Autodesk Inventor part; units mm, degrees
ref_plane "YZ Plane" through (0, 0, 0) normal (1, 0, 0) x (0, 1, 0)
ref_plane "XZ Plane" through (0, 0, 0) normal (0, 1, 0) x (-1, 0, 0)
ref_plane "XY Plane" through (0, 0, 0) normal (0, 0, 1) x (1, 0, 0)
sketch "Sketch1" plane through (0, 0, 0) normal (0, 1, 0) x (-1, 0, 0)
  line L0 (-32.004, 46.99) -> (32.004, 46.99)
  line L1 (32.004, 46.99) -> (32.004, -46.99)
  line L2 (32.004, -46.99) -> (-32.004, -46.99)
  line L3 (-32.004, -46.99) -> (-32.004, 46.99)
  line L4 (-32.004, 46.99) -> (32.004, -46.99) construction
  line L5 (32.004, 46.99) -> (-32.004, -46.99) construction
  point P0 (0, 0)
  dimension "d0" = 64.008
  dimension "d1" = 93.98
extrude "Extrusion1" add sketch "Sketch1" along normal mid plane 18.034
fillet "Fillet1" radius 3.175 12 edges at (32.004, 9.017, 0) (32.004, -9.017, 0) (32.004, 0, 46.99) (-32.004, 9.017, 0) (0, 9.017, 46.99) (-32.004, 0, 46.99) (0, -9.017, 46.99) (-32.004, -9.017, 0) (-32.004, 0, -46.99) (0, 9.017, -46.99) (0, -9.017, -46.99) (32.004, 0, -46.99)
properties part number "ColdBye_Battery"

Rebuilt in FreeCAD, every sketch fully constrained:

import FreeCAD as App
import Part
import Sketcher
Q = App.Units.Quantity


def add_polygon(sketch, points):
    """Adds a closed chain of lines whose ends are joined by coincident constraints."""
    first, n = sketch.GeometryCount, len(points)
    for a, b in zip(points, points[1:] + points[:1]):
        sketch.addGeometry(Part.LineSegment(App.Vector(*a, 0), App.Vector(*b, 0)), False)
    for i in range(n):
        sketch.addConstraint(Sketcher.Constraint("Coincident", first + i, 2, first + (i + 1) % n, 1))

doc = App.newDocument("Part")
body = doc.addObject("PartDesign::Body", "Body")

sketch1 = body.newObject("Sketcher::SketchObject", "Sketch")
sketch1.AttachmentSupport = (doc.getObject("XZ_Plane"), [""])
sketch1.MapMode = "FlatFace"
add_polygon(sketch1, [(-32, 47), (32, 47), (32, -47), (-32, -47)])
sketch1.addConstraint([
    Sketcher.Constraint("Horizontal", 0),
    Sketcher.Constraint("Vertical", 1),
    Sketcher.Constraint("Horizontal", 2),
    Sketcher.Constraint("Vertical", 3),
    Sketcher.Constraint("Symmetric", 0, 2, 2, 2, -1, 1),
    Sketcher.Constraint("DistanceY", 1, 2, 1, 1, Q("3.7 in")),
    Sketcher.Constraint("DistanceX", 0, 1, 0, 2, Q("2.52 in")),
])
pad1 = body.newObject("PartDesign::Pad", "Pad")
pad1.Profile = sketch1
pad1.Length = Q("0.71 in")
pad1.Midplane = True
doc.recompute()

fillet = body.newObject("PartDesign::Fillet", "Fillet")
fillet.Base = (pad1, ["Edge1"])
fillet.UseAllEdges = True
fillet.Radius = Q("0.125 in")

doc.recompute()
